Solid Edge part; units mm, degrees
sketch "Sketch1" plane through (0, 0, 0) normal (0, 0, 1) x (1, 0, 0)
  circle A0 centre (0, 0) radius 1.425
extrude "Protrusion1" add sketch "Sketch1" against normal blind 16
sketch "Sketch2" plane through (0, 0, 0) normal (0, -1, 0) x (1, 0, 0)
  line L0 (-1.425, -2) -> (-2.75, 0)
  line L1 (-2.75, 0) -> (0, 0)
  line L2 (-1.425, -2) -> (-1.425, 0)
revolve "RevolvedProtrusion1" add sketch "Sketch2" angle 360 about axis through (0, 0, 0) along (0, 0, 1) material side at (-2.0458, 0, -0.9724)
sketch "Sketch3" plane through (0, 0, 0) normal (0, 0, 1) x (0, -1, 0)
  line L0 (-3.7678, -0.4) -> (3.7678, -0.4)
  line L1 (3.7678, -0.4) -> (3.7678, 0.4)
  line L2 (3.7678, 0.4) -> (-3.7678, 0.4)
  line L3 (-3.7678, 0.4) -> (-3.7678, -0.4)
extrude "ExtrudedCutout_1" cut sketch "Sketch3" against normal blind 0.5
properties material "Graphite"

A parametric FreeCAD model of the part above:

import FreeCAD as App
import Part
import Sketcher

V = App.Vector

doc = App.newDocument("Part")
body = doc.addObject("PartDesign::Body", "Body")

sketch1 = body.newObject("Sketcher::SketchObject", "Sketch")
sketch1.AttachmentSupport = (doc.getObject("XY_Plane"), [""])
sketch1.MapMode = "FlatFace"
sketch1.addGeometry(Part.Circle(V(0, 0, 0), V(0, 0, 1), 1.4), False)
sketch1.addConstraint(Sketcher.Constraint("Coincident", 0, 3, -1, 1))
sketch1.addConstraint(Sketcher.Constraint("Diameter", 0, 2.85))
pad1 = body.newObject("PartDesign::Pad", "Pad")
pad1.Profile = sketch1
pad1.Length = 16
pad1.Reversed = True

sketch2 = body.newObject("Sketcher::SketchObject", "Sketch001")
sketch2.AttachmentSupport = (doc.getObject("XZ_Plane"), [""])
sketch2.MapMode = "FlatFace"
sketch2.addGeometry(Part.LineSegment(V(-2.8, 0, 0), V(-1.4, -2, 0)), False)
sketch2.addGeometry(Part.LineSegment(V(-1.4, -2, 0), V(-1.4, 0, 0)), False)
sketch2.addGeometry(Part.LineSegment(V(-1.4, 0, 0), V(-2.8, 0, 0)), False)
sketch2.addConstraint(Sketcher.Constraint("Coincident", 0, 2, 1, 1))
sketch2.addConstraint(Sketcher.Constraint("Coincident", 1, 2, 2, 1))
sketch2.addConstraint(Sketcher.Constraint("Coincident", 2, 2, 0, 1))
sketch2.addConstraint(Sketcher.Constraint("Vertical", 1))
sketch2.addConstraint(Sketcher.Constraint("Horizontal", 2))
sketch2.addConstraint(Sketcher.Constraint("PointOnObject", 1, 2, -1))
sketch2.addConstraint(Sketcher.Constraint("DistanceY", 1, 1, 1, 2, 2.0))
sketch2.addConstraint(Sketcher.Constraint("DistanceX", 2, 2, 2, 1, 1.325))
sketch2.addConstraint(Sketcher.Constraint("DistanceX", 2, 2, -1, 1, 2.75))
revolution = body.newObject("PartDesign::Revolution", "Revolution")
revolution.Profile = sketch2
revolution.ReferenceAxis = (sketch2, ["V_Axis"])
revolution.Angle = 360

sketch3 = body.newObject("Sketcher::SketchObject", "Sketch002")
sketch3.AttachmentSupport = (doc.getObject("XY_Plane"), [""])
sketch3.MapMode = "FlatFace"
sketch3.addGeometry(Part.LineSegment(V(0.4, 3.8, 0), V(-0.4, 3.8, 0)), False)
sketch3.addGeometry(Part.LineSegment(V(-0.4, 3.8, 0), V(-0.4, -3.8, 0)), False)
sketch3.addGeometry(Part.LineSegment(V(-0.4, -3.8, 0), V(0.4, -3.8, 0)), False)
sketch3.addGeometry(Part.LineSegment(V(0.4, -3.8, 0), V(0.4, 3.8, 0)), False)
sketch3.addConstraint(Sketcher.Constraint("Coincident", 0, 2, 1, 1))
sketch3.addConstraint(Sketcher.Constraint("Coincident", 1, 2, 2, 1))
sketch3.addConstraint(Sketcher.Constraint("Coincident", 2, 2, 3, 1))
sketch3.addConstraint(Sketcher.Constraint("Coincident", 3, 2, 0, 1))
sketch3.addConstraint(Sketcher.Constraint("Horizontal", 0))
sketch3.addConstraint(Sketcher.Constraint("Vertical", 1))
sketch3.addConstraint(Sketcher.Constraint("Horizontal", 2))
sketch3.addConstraint(Sketcher.Constraint("Vertical", 3))
sketch3.addConstraint(Sketcher.Constraint("Symmetric", 0, 2, 2, 2, -1, 1))
sketch3.addConstraint(Sketcher.Constraint("DistanceX", 0, 2, 0, 1, 0.8))
sketch3.addConstraint(Sketcher.Constraint("DistanceY", 1, 2, 1, 1, 7.5356))
pocket1 = body.newObject("PartDesign::Pocket", "Pocket")
pocket1.Profile = sketch3
pocket1.Length = 0.5

doc.recompute()
